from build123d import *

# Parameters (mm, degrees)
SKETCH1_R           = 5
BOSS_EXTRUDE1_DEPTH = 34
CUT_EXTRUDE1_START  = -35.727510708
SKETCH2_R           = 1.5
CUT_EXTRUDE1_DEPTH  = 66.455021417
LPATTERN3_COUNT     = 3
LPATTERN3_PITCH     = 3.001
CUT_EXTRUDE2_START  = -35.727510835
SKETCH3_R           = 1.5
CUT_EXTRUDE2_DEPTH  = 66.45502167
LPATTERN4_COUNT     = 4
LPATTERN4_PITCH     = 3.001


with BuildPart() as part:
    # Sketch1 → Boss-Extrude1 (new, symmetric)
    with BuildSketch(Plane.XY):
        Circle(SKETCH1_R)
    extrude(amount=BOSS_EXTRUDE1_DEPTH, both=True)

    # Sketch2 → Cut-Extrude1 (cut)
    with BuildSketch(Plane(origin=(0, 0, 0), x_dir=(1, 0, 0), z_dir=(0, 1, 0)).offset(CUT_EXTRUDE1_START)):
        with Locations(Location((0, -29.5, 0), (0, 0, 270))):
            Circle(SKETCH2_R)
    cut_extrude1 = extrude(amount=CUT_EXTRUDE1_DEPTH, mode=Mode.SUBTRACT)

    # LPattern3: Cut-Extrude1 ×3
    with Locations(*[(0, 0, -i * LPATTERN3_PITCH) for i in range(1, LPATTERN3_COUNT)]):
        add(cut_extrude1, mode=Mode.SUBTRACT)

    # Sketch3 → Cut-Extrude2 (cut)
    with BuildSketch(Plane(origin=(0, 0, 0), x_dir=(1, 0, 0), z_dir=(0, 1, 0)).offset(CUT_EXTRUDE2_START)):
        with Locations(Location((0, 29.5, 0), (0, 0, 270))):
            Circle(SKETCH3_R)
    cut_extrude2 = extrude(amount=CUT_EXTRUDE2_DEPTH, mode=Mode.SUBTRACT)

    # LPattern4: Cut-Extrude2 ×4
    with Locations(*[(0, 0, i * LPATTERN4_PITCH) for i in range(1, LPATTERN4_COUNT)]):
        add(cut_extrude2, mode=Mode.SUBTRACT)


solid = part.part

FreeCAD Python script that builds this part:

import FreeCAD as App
import Part
import Sketcher
Q = App.Units.Quantity

doc = App.newDocument("Part")
params = doc.addObject("Spreadsheet::Sheet", "Params")
for row, (alias, value) in enumerate([
    ("sketch1_diameter", "10 mm"),
    ("pad1_length", "68 mm"),
    ("sketch2_diameter", "3 mm"),
    ("pocket1_length", "66.455021 mm"),
    ("linearpattern_pitch", "3.001 mm"),
    ("sketch3_diameter", "3 mm"),
    ("pocket2_length", "66.455022 mm"),
    ("linearpattern2_pitch", "3.001 mm"),
], start=1):
    params.set(f"A{row}", alias)
    params.set(f"B{row}", "=" + value)
    params.setAlias(f"B{row}", alias)

body = doc.addObject("PartDesign::Body", "Body")

# Sketch on XY plane
sketch1 = doc.addObject("Sketcher::SketchObject", "Sketch")
body.addObject(sketch1)
sketch1.AttachmentSupport = (doc.XY_Plane, [""])
sketch1.MapMode = "FlatFace"
sketch1.addGeometry(Part.Circle(App.Vector(0, 0, 0), App.Vector(0, 0, 1), 5), False)
sketch1.addConstraint([
    Sketcher.Constraint("Coincident", 0, 3, -1, 1),
    Sketcher.Constraint("Diameter", 0, Q("10 mm")),
])
sketch1.setExpression("Constraints[1]", "Params.sketch1_diameter")
pad1 = doc.addObject("PartDesign::Pad", "Pad")
body.addObject(pad1)
pad1.Profile = sketch1
pad1.setExpression("Length", "Params.pad1_length")
pad1.Midplane = True

# Sketch on XZ plane
sketch2 = doc.addObject("Sketcher::SketchObject", "Sketch001")
body.addObject(sketch2)
sketch2.AttachmentSupport = (doc.XZ_Plane, [""])
sketch2.MapMode = "FlatFace"
sketch2.AttachmentOffset = App.Placement(App.Vector(0, 0, 35.727511), App.Rotation())
sketch2.addGeometry(Part.Circle(App.Vector(0, 29.5, 0), App.Vector(0, 0, 1), 1.5), False)
sketch2.addConstraint([
    Sketcher.Constraint("PointOnObject", 0, 3, -2),
    Sketcher.Constraint("Diameter", 0, Q("3 mm")),
    Sketcher.Constraint("DistanceY", -1, 1, 0, 3, Q("29.5 mm")),
])
sketch2.setExpression("Constraints[1]", "Params.sketch2_diameter")
pocket1 = doc.addObject("PartDesign::Pocket", "Pocket")
body.addObject(pocket1)
pocket1.Profile = sketch2
pocket1.setExpression("Length", "Params.pocket1_length")
doc.recompute()

linearpattern = doc.addObject("PartDesign::LinearPattern", "LinearPattern")
body.addObject(linearpattern)
linearpattern.Originals = [pocket1]
linearpattern.Direction = (doc.Z_Axis, [""])
linearpattern.Mode = "offset"
linearpattern.setExpression("Offset", "Params.linearpattern_pitch")
linearpattern.Occurrences = 3
linearpattern.Reversed = True
body.Tip = linearpattern

# Sketch on XZ plane
sketch3 = doc.addObject("Sketcher::SketchObject", "Sketch002")
body.addObject(sketch3)
sketch3.AttachmentSupport = (doc.XZ_Plane, [""])
sketch3.MapMode = "FlatFace"
sketch3.AttachmentOffset = App.Placement(App.Vector(0, 0, 35.727511), App.Rotation())
sketch3.addGeometry(Part.Circle(App.Vector(0, -29.5, 0), App.Vector(0, 0, 1), 1.5), False)
sketch3.addConstraint([
    Sketcher.Constraint("PointOnObject", 0, 3, -2),
    Sketcher.Constraint("Diameter", 0, Q("3 mm")),
    Sketcher.Constraint("DistanceY", 0, 3, -1, 1, Q("29.5 mm")),
])
sketch3.setExpression("Constraints[1]", "Params.sketch3_diameter")
pocket2 = doc.addObject("PartDesign::Pocket", "Pocket001")
body.addObject(pocket2)
pocket2.Profile = sketch3
pocket2.setExpression("Length", "Params.pocket2_length")
doc.recompute()

linearpattern2 = doc.addObject("PartDesign::LinearPattern", "LinearPattern001")
body.addObject(linearpattern2)
linearpattern2.Originals = [pocket2]
linearpattern2.Direction = (doc.Z_Axis, [""])
linearpattern2.Mode = "offset"
linearpattern2.setExpression("Offset", "Params.linearpattern2_pitch")
linearpattern2.Occurrences = 4
body.Tip = linearpattern2

doc.recompute()
